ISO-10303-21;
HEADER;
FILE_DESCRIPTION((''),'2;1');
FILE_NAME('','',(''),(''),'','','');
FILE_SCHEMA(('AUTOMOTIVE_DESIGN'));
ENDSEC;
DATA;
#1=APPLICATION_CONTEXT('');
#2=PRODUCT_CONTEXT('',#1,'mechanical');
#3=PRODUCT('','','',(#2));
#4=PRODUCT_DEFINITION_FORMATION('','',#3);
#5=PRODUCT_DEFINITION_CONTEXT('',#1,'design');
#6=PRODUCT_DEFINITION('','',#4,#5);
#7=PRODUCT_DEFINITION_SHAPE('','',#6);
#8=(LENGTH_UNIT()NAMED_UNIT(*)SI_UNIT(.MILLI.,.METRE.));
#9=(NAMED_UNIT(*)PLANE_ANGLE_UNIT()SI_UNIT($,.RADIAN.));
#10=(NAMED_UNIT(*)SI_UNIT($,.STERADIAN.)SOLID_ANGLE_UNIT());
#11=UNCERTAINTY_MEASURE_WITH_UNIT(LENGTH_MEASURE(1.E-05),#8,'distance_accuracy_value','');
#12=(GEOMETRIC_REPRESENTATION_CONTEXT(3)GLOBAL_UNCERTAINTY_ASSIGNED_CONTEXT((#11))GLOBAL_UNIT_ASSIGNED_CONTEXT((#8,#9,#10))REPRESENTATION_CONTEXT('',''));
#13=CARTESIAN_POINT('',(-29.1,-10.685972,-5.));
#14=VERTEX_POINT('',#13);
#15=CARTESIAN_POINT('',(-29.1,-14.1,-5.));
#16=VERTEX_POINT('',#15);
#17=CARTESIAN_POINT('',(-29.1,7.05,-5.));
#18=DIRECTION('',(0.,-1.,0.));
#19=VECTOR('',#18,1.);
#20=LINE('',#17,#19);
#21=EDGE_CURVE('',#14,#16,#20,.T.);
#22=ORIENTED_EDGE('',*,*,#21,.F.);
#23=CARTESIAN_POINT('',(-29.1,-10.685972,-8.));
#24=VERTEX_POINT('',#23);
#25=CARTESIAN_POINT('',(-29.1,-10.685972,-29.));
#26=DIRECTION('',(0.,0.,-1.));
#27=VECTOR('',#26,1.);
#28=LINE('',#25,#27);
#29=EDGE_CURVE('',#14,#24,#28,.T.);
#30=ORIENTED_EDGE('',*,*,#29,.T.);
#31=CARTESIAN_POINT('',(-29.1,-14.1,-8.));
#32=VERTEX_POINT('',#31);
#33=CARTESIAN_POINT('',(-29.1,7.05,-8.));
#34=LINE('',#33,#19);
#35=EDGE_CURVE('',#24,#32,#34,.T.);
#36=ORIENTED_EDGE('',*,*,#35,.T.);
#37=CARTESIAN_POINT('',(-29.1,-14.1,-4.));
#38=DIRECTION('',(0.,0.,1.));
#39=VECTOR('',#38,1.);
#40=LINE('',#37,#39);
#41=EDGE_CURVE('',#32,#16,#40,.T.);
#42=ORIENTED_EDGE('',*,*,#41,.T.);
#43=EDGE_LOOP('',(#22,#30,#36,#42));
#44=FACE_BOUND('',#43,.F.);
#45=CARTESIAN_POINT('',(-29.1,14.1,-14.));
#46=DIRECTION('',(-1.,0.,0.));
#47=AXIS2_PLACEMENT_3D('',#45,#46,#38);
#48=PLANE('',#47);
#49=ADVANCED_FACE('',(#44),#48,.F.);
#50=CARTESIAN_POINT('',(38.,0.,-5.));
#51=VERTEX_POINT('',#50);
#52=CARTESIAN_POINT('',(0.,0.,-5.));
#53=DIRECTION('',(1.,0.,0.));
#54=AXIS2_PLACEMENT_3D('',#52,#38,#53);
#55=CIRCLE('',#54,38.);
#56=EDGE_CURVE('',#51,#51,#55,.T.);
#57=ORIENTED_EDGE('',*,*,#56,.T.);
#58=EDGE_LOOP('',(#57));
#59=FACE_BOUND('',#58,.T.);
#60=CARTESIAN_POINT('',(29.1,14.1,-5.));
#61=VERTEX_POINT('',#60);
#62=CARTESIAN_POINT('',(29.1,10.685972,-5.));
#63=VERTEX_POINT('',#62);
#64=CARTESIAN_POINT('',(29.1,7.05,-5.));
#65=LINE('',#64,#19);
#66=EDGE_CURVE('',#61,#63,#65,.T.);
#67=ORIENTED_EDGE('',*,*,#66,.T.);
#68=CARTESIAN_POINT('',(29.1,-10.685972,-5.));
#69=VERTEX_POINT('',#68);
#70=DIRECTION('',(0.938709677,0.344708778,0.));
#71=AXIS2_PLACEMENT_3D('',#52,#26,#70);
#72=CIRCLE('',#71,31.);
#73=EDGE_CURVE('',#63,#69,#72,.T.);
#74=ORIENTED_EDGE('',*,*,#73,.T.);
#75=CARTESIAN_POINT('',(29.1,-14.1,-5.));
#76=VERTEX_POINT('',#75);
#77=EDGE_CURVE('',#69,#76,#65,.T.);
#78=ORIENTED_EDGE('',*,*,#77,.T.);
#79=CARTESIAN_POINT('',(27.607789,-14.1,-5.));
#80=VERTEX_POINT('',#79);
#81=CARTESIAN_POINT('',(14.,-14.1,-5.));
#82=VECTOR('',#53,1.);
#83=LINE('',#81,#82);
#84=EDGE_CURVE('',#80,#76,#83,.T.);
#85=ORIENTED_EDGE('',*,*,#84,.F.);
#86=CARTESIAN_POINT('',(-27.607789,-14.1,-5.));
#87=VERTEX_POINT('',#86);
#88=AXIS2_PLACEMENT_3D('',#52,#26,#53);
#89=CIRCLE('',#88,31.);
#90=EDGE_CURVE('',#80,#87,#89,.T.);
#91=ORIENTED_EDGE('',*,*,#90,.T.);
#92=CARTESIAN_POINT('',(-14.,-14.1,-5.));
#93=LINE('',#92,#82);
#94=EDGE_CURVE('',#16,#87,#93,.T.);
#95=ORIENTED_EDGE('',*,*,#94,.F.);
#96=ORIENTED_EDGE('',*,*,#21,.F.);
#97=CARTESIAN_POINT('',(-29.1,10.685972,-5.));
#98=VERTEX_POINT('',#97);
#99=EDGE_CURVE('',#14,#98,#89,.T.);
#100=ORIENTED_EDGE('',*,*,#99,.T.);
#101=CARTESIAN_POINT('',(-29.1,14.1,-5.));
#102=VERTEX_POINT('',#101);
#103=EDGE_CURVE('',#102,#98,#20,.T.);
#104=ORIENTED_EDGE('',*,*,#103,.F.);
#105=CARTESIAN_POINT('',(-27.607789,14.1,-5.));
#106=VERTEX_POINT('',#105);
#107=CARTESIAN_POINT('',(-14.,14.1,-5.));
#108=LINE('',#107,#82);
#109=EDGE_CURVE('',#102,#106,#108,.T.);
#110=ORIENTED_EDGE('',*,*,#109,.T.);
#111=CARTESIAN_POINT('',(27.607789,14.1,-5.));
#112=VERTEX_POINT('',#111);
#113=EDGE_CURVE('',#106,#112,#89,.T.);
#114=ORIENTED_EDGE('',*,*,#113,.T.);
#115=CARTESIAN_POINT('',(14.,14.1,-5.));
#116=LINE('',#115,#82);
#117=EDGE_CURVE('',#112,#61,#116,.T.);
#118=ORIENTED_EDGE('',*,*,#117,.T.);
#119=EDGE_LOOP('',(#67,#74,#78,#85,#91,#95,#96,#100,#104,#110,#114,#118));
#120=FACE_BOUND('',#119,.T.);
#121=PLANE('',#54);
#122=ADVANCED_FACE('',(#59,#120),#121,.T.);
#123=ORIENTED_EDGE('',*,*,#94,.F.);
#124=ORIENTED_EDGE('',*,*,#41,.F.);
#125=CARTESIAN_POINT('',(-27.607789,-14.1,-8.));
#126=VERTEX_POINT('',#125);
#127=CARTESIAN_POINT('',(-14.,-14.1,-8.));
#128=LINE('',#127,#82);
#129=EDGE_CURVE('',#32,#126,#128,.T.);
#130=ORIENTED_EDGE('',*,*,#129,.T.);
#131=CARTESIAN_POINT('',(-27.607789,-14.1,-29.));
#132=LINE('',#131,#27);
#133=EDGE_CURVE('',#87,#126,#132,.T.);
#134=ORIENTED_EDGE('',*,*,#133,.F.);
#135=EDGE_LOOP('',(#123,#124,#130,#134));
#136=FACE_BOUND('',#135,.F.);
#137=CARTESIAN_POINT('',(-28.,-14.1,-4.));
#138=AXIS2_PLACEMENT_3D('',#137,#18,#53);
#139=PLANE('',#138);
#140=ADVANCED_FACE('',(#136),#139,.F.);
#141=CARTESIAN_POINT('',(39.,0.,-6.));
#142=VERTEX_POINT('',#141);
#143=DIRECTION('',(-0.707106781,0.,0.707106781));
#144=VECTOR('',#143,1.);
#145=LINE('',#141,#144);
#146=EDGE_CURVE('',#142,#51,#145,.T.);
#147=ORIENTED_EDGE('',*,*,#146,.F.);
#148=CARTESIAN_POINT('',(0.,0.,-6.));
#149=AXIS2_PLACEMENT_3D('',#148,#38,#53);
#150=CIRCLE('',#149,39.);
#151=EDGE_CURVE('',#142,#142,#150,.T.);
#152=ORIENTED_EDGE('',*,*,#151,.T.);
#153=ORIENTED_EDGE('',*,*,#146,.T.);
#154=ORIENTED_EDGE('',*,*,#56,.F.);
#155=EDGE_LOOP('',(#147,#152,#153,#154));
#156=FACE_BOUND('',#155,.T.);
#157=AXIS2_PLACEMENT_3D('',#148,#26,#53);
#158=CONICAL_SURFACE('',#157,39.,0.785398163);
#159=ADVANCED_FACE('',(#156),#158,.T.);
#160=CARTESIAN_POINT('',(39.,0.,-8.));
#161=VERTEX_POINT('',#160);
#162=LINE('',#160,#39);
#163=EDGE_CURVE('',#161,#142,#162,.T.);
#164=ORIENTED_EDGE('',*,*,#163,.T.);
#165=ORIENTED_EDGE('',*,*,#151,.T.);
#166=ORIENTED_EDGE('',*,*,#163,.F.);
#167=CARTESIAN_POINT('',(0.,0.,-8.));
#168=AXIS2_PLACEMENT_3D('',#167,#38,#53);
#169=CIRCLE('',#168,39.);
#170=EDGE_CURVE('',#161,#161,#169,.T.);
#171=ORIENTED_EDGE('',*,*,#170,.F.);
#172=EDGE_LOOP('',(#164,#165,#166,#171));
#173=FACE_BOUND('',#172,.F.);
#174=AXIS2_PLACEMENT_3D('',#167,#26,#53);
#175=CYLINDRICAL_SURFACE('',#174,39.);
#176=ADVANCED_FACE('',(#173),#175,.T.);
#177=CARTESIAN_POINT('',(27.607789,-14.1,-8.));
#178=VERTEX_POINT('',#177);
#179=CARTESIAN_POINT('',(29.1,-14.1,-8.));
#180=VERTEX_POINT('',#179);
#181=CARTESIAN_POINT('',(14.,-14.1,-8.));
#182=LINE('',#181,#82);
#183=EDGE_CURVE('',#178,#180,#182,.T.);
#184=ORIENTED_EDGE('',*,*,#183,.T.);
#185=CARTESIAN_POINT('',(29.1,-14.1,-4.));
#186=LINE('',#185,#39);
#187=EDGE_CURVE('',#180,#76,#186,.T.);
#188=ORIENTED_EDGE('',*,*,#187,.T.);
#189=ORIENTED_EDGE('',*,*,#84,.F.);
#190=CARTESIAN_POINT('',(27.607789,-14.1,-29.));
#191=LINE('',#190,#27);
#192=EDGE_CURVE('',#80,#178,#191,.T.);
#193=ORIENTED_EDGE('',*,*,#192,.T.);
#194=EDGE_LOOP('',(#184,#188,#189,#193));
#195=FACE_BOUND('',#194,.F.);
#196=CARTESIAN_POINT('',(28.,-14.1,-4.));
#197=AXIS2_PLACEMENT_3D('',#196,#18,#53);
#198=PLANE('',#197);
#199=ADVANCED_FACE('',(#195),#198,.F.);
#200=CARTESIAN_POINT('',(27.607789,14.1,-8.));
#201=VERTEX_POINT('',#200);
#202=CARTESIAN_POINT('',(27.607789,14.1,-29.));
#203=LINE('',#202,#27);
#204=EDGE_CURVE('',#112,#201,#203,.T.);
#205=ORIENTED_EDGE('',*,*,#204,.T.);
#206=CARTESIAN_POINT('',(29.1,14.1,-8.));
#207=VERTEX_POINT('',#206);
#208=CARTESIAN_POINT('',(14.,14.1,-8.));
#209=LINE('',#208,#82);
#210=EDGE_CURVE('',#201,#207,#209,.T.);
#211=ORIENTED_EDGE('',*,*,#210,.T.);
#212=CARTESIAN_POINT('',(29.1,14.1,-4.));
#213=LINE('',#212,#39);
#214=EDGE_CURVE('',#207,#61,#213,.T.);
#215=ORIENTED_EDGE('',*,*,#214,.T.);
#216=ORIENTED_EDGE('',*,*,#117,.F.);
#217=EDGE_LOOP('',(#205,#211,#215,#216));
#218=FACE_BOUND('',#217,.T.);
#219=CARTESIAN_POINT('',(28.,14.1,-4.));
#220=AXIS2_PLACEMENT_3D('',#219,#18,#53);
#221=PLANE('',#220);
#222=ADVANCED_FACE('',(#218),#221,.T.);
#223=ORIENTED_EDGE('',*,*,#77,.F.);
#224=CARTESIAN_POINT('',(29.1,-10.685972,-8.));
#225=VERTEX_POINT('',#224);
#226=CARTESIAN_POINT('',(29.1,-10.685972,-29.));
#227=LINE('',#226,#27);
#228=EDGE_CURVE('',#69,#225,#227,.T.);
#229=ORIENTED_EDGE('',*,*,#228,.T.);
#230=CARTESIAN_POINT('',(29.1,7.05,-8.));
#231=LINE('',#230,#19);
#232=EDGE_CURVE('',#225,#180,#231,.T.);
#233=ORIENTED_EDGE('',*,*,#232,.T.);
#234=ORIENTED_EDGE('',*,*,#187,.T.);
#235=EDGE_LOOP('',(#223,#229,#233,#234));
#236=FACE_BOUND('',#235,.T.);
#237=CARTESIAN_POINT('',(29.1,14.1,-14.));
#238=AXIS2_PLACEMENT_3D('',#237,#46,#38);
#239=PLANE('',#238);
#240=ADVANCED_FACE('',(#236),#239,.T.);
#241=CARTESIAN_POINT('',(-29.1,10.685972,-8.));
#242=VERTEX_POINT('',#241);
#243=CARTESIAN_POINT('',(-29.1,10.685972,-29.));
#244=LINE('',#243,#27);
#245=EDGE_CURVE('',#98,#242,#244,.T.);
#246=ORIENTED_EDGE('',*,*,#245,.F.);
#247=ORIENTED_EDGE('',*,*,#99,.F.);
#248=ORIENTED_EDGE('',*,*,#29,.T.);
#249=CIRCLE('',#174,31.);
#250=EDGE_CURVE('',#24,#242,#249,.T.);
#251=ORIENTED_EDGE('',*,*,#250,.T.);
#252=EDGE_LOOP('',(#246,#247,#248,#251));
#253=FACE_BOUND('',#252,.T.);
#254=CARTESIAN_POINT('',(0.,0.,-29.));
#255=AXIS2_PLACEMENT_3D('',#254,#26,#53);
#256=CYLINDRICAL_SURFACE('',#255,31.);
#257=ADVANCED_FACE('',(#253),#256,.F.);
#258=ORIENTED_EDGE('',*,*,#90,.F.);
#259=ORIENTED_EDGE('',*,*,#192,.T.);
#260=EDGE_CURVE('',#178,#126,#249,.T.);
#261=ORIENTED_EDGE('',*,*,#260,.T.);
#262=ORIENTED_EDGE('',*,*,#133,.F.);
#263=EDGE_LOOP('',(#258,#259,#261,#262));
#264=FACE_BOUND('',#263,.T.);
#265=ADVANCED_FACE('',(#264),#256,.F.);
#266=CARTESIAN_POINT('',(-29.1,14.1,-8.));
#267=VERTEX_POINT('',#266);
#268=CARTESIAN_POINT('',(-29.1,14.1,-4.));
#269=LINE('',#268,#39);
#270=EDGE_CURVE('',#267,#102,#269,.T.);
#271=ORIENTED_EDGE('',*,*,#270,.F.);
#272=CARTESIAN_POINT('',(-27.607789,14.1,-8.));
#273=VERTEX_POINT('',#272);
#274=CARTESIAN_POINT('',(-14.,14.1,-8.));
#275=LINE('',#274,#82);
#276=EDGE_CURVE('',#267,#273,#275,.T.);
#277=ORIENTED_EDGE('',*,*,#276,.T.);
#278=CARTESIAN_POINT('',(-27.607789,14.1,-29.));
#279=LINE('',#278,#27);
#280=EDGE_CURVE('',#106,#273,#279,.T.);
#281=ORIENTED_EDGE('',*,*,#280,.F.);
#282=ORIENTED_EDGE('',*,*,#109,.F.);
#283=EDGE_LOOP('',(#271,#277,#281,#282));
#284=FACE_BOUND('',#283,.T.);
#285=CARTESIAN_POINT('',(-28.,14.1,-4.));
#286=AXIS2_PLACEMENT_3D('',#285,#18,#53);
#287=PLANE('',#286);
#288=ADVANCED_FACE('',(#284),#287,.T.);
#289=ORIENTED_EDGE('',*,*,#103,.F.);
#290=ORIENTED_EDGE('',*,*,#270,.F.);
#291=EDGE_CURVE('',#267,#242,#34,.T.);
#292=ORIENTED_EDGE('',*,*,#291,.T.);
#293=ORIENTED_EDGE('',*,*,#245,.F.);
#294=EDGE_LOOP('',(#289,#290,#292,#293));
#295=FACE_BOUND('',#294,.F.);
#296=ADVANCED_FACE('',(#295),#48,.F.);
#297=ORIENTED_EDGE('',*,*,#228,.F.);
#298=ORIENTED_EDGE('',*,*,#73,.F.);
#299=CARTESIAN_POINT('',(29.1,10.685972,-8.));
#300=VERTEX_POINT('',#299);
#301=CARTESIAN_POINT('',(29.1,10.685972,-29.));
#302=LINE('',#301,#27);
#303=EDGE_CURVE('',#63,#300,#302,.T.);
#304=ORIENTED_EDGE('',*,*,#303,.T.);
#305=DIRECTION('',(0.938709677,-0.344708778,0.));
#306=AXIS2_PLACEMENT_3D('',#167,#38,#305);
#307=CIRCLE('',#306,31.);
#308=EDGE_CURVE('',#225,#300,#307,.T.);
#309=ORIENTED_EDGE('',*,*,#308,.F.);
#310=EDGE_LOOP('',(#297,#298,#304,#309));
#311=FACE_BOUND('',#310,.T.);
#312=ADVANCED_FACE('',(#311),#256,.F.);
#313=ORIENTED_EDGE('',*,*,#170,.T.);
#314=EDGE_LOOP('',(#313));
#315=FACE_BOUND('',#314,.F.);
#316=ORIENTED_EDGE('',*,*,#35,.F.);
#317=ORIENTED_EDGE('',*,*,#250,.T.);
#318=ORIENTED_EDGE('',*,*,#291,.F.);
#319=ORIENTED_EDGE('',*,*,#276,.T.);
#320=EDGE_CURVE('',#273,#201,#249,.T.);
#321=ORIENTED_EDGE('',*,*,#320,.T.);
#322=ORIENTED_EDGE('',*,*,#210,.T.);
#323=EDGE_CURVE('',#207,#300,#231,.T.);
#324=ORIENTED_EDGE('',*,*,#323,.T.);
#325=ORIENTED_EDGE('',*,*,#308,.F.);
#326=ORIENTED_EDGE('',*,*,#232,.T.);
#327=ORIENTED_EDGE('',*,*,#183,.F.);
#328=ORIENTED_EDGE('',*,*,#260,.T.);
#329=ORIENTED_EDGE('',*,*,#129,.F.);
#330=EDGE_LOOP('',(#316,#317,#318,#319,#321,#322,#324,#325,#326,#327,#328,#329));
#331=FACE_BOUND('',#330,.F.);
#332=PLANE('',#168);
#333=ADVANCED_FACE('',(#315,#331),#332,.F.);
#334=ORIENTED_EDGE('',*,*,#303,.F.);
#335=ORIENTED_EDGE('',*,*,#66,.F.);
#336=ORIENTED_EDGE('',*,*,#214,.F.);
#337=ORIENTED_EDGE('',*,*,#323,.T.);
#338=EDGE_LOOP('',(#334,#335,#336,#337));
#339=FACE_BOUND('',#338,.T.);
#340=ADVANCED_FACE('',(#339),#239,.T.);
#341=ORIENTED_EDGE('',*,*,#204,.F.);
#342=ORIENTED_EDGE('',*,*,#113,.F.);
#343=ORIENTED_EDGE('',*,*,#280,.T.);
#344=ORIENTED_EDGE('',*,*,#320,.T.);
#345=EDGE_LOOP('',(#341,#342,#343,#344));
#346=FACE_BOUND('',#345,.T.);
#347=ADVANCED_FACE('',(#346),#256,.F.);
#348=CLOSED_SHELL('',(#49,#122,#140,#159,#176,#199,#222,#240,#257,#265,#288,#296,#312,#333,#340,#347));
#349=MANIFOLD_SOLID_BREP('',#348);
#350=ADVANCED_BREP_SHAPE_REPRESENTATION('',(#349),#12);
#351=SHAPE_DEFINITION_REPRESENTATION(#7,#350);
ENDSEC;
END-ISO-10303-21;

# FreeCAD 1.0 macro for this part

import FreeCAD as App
import Part
import Sketcher

V = App.Vector
Q = App.Units.Quantity


def edges_at(feature, points):
    """Names of the edges that pass closest to the given points."""
    edges = feature.Shape.Edges
    near = lambda p: min(range(len(edges)), key=lambda i: edges[i].distToShape(Part.Vertex(*p))[0])
    return sorted({f"Edge{near(p) + 1}" for p in points})


def add_polygon(sketch, points):
    """Adds a closed chain of lines whose ends are joined by coincident constraints."""
    first, n = sketch.GeometryCount, len(points)
    for a, b in zip(points, points[1:] + points[:1]):
        sketch.addGeometry(Part.LineSegment(App.Vector(*a, 0), App.Vector(*b, 0)), False)
    for i in range(n):
        sketch.addConstraint(Sketcher.Constraint("Coincident", first + i, 2, first + (i + 1) % n, 1))

doc = App.newDocument("Part")
params = doc.addObject("Spreadsheet::Sheet", "Params")
for row, (alias, value) in enumerate([
    ("sketch1_height", "20 mm"),
    ("sketch1_width", "2.2 mm"),
    ("pad1_length", "28.2 mm"),
    ("sketch2_height", "20 mm"),
    ("sketch2_width", "2.2 mm"),
    ("pad2_length", "28.2 mm"),
    ("sketch3_diameter", "62 mm"),
    ("pad3_length", "34 mm"),
    ("sketch4_diameter", "78 mm"),
    ("pad4_length", "3 mm"),
    ("chamfer_size", "1 mm"),
], start=1):
    params.set(f"A{row}", alias)
    params.set(f"B{row}", "=" + value)
    params.setAlias(f"B{row}", alias)

body = doc.addObject("PartDesign::Body", "Body")

# Sketch on XY plane
sketch1 = doc.addObject("Sketcher::SketchObject", "Sketch")
body.addObject(sketch1)
sketch1.AttachmentSupport = (doc.XY_Plane, [""])
sketch1.MapMode = "FlatFace"
sketch1.AttachmentOffset = App.Placement(V(0, 0, -4.1), App.Rotation())
add_polygon(sketch1, [(43.9, -91), (43.9, -111), (46.1, -111), (46.1, -91)])  # lines 0-3
sketch1.addConstraint([
    Sketcher.Constraint("Vertical", 0),
    Sketcher.Constraint("Horizontal", 1),
    Sketcher.Constraint("Vertical", 2),
    Sketcher.Constraint("Horizontal", 3),
    Sketcher.Constraint("DistanceY", 0, 2, 0, 1, Q("20 mm")),
    Sketcher.Constraint("DistanceX", 1, 1, 1, 2, Q("2.2 mm")),
    Sketcher.Constraint("DistanceY", 0, 2, -1, 1, Q("111 mm")),
    Sketcher.Constraint("DistanceX", -1, 1, 0, 2, Q("43.9 mm")),
])
sketch1.setExpression("Constraints[8]", "Params.sketch1_height")
sketch1.setExpression("Constraints[9]", "Params.sketch1_width")
pad1 = doc.addObject("PartDesign::Pad", "Pad")
body.addObject(pad1)
pad1.Profile = sketch1
pad1.setExpression("Length", "Params.pad1_length")
body2 = doc.addObject("PartDesign::Body", "Body001")
body2.AllowCompound = True

# Sketch on XY plane
sketch2 = doc.addObject("Sketcher::SketchObject", "Sketch001")
body2.addObject(sketch2)
sketch2.AttachmentSupport = (doc.getObject("XY_Plane001"), [""])
sketch2.MapMode = "FlatFace"
sketch2.AttachmentOffset = App.Placement(V(0, 0, -4.1), App.Rotation())
add_polygon(sketch2, [(-12.1, -91), (-12.1, -111), (-9.9, -111), (-9.9, -91)])  # lines 0-3
sketch2.addConstraint([
    Sketcher.Constraint("Vertical", 0),
    Sketcher.Constraint("Horizontal", 1),
    Sketcher.Constraint("Vertical", 2),
    Sketcher.Constraint("Horizontal", 3),
    Sketcher.Constraint("DistanceY", 0, 2, 0, 1, Q("20 mm")),
    Sketcher.Constraint("DistanceX", 1, 1, 1, 2, Q("2.2 mm")),
    Sketcher.Constraint("DistanceY", 0, 2, -1, 1, Q("111 mm")),
    Sketcher.Constraint("DistanceX", 0, 2, -1, 1, Q("12.1 mm")),
])
sketch2.setExpression("Constraints[8]", "Params.sketch2_height")
sketch2.setExpression("Constraints[9]", "Params.sketch2_width")
pad2 = doc.addObject("PartDesign::Pad", "Pad001")
body2.addObject(pad2)
pad2.Profile = sketch2
pad2.setExpression("Length", "Params.pad2_length")
doc.recompute()

boolean = doc.addObject("PartDesign::Boolean", "Boolean")
body2.addObject(boolean)
boolean.Type = "Fuse"
boolean.addObjects([body])
body3 = doc.addObject("PartDesign::Body", "Body002")
body3.AllowCompound = True
doc.recompute()

body2.Placement = App.Placement(V(-17, 10, 97), App.Rotation(V(1, 0, 0), 90))
boolean2 = doc.addObject("PartDesign::Boolean", "Boolean001")
body3.addObject(boolean2)
boolean2.Type = "Fuse"
boolean2.addObjects([body2])
body4 = doc.addObject("PartDesign::Body", "Body003")

# Sketch on XY plane
sketch3 = doc.addObject("Sketcher::SketchObject", "Sketch002")
body4.addObject(sketch3)
sketch3.AttachmentSupport = (doc.getObject("XY_Plane003"), [""])
sketch3.MapMode = "FlatFace"
sketch3.AttachmentOffset = App.Placement(V(0, 0, -21), App.Rotation())
sketch3.addGeometry(Part.Circle(V(0, 0, 0), V(0, 0, 1), 31), False)
sketch3.addConstraint([
    Sketcher.Constraint("Coincident", 0, 3, -1, 1),
    Sketcher.Constraint("Diameter", 0, Q("62 mm")),
])
sketch3.setExpression("Constraints[1]", "Params.sketch3_diameter")
pad3 = doc.addObject("PartDesign::Pad", "Pad002")
body4.addObject(pad3)
pad3.Profile = sketch3
pad3.setExpression("Length", "Params.pad3_length")
body5 = doc.addObject("PartDesign::Body", "Body004")

# Sketch on XY plane
sketch4 = doc.addObject("Sketcher::SketchObject", "Sketch003")
body5.addObject(sketch4)
sketch4.AttachmentSupport = (doc.getObject("XY_Plane004"), [""])
sketch4.MapMode = "FlatFace"
sketch4.addGeometry(Part.Circle(V(0, 0, 0), V(0, 0, 1), 39), False)
sketch4.addConstraint([
    Sketcher.Constraint("Coincident", 0, 3, -1, 1),
    Sketcher.Constraint("Diameter", 0, Q("78 mm")),
])
sketch4.setExpression("Constraints[1]", "Params.sketch4_diameter")
pad4 = doc.addObject("PartDesign::Pad", "Pad003")
body5.addObject(pad4)
pad4.Profile = sketch4
pad4.setExpression("Length", "Params.pad4_length")
doc.recompute()

boolean3 = doc.addObject("PartDesign::Boolean", "Boolean002")
body5.addObject(boolean3)
boolean3.Type = "Cut"
boolean3.addObjects([body4])
doc.recompute()

chamfer = doc.addObject("PartDesign::Chamfer", "Chamfer")
body5.addObject(chamfer)
chamfer.Base = (boolean3, edges_at(boolean3, [(-39, 0, 3)]))
chamfer.setExpression("Size", "Params.chamfer_size")
body6 = doc.addObject("PartDesign::Body", "Body005")
doc.recompute()

body5.Placement = App.Placement(V(0, 0, -8), App.Rotation(V(0, 0, 1), 0))
boolean4 = doc.addObject("PartDesign::Boolean", "Boolean003")
body6.addObject(boolean4)
boolean4.Type = "Fuse"
boolean4.addObjects([body5])
doc.recompute()

boolean5 = doc.addObject("PartDesign::Boolean", "Boolean004")
body6.addObject(boolean5)
boolean5.Type = "Cut"
boolean5.addObjects([body3])

doc.recompute()
